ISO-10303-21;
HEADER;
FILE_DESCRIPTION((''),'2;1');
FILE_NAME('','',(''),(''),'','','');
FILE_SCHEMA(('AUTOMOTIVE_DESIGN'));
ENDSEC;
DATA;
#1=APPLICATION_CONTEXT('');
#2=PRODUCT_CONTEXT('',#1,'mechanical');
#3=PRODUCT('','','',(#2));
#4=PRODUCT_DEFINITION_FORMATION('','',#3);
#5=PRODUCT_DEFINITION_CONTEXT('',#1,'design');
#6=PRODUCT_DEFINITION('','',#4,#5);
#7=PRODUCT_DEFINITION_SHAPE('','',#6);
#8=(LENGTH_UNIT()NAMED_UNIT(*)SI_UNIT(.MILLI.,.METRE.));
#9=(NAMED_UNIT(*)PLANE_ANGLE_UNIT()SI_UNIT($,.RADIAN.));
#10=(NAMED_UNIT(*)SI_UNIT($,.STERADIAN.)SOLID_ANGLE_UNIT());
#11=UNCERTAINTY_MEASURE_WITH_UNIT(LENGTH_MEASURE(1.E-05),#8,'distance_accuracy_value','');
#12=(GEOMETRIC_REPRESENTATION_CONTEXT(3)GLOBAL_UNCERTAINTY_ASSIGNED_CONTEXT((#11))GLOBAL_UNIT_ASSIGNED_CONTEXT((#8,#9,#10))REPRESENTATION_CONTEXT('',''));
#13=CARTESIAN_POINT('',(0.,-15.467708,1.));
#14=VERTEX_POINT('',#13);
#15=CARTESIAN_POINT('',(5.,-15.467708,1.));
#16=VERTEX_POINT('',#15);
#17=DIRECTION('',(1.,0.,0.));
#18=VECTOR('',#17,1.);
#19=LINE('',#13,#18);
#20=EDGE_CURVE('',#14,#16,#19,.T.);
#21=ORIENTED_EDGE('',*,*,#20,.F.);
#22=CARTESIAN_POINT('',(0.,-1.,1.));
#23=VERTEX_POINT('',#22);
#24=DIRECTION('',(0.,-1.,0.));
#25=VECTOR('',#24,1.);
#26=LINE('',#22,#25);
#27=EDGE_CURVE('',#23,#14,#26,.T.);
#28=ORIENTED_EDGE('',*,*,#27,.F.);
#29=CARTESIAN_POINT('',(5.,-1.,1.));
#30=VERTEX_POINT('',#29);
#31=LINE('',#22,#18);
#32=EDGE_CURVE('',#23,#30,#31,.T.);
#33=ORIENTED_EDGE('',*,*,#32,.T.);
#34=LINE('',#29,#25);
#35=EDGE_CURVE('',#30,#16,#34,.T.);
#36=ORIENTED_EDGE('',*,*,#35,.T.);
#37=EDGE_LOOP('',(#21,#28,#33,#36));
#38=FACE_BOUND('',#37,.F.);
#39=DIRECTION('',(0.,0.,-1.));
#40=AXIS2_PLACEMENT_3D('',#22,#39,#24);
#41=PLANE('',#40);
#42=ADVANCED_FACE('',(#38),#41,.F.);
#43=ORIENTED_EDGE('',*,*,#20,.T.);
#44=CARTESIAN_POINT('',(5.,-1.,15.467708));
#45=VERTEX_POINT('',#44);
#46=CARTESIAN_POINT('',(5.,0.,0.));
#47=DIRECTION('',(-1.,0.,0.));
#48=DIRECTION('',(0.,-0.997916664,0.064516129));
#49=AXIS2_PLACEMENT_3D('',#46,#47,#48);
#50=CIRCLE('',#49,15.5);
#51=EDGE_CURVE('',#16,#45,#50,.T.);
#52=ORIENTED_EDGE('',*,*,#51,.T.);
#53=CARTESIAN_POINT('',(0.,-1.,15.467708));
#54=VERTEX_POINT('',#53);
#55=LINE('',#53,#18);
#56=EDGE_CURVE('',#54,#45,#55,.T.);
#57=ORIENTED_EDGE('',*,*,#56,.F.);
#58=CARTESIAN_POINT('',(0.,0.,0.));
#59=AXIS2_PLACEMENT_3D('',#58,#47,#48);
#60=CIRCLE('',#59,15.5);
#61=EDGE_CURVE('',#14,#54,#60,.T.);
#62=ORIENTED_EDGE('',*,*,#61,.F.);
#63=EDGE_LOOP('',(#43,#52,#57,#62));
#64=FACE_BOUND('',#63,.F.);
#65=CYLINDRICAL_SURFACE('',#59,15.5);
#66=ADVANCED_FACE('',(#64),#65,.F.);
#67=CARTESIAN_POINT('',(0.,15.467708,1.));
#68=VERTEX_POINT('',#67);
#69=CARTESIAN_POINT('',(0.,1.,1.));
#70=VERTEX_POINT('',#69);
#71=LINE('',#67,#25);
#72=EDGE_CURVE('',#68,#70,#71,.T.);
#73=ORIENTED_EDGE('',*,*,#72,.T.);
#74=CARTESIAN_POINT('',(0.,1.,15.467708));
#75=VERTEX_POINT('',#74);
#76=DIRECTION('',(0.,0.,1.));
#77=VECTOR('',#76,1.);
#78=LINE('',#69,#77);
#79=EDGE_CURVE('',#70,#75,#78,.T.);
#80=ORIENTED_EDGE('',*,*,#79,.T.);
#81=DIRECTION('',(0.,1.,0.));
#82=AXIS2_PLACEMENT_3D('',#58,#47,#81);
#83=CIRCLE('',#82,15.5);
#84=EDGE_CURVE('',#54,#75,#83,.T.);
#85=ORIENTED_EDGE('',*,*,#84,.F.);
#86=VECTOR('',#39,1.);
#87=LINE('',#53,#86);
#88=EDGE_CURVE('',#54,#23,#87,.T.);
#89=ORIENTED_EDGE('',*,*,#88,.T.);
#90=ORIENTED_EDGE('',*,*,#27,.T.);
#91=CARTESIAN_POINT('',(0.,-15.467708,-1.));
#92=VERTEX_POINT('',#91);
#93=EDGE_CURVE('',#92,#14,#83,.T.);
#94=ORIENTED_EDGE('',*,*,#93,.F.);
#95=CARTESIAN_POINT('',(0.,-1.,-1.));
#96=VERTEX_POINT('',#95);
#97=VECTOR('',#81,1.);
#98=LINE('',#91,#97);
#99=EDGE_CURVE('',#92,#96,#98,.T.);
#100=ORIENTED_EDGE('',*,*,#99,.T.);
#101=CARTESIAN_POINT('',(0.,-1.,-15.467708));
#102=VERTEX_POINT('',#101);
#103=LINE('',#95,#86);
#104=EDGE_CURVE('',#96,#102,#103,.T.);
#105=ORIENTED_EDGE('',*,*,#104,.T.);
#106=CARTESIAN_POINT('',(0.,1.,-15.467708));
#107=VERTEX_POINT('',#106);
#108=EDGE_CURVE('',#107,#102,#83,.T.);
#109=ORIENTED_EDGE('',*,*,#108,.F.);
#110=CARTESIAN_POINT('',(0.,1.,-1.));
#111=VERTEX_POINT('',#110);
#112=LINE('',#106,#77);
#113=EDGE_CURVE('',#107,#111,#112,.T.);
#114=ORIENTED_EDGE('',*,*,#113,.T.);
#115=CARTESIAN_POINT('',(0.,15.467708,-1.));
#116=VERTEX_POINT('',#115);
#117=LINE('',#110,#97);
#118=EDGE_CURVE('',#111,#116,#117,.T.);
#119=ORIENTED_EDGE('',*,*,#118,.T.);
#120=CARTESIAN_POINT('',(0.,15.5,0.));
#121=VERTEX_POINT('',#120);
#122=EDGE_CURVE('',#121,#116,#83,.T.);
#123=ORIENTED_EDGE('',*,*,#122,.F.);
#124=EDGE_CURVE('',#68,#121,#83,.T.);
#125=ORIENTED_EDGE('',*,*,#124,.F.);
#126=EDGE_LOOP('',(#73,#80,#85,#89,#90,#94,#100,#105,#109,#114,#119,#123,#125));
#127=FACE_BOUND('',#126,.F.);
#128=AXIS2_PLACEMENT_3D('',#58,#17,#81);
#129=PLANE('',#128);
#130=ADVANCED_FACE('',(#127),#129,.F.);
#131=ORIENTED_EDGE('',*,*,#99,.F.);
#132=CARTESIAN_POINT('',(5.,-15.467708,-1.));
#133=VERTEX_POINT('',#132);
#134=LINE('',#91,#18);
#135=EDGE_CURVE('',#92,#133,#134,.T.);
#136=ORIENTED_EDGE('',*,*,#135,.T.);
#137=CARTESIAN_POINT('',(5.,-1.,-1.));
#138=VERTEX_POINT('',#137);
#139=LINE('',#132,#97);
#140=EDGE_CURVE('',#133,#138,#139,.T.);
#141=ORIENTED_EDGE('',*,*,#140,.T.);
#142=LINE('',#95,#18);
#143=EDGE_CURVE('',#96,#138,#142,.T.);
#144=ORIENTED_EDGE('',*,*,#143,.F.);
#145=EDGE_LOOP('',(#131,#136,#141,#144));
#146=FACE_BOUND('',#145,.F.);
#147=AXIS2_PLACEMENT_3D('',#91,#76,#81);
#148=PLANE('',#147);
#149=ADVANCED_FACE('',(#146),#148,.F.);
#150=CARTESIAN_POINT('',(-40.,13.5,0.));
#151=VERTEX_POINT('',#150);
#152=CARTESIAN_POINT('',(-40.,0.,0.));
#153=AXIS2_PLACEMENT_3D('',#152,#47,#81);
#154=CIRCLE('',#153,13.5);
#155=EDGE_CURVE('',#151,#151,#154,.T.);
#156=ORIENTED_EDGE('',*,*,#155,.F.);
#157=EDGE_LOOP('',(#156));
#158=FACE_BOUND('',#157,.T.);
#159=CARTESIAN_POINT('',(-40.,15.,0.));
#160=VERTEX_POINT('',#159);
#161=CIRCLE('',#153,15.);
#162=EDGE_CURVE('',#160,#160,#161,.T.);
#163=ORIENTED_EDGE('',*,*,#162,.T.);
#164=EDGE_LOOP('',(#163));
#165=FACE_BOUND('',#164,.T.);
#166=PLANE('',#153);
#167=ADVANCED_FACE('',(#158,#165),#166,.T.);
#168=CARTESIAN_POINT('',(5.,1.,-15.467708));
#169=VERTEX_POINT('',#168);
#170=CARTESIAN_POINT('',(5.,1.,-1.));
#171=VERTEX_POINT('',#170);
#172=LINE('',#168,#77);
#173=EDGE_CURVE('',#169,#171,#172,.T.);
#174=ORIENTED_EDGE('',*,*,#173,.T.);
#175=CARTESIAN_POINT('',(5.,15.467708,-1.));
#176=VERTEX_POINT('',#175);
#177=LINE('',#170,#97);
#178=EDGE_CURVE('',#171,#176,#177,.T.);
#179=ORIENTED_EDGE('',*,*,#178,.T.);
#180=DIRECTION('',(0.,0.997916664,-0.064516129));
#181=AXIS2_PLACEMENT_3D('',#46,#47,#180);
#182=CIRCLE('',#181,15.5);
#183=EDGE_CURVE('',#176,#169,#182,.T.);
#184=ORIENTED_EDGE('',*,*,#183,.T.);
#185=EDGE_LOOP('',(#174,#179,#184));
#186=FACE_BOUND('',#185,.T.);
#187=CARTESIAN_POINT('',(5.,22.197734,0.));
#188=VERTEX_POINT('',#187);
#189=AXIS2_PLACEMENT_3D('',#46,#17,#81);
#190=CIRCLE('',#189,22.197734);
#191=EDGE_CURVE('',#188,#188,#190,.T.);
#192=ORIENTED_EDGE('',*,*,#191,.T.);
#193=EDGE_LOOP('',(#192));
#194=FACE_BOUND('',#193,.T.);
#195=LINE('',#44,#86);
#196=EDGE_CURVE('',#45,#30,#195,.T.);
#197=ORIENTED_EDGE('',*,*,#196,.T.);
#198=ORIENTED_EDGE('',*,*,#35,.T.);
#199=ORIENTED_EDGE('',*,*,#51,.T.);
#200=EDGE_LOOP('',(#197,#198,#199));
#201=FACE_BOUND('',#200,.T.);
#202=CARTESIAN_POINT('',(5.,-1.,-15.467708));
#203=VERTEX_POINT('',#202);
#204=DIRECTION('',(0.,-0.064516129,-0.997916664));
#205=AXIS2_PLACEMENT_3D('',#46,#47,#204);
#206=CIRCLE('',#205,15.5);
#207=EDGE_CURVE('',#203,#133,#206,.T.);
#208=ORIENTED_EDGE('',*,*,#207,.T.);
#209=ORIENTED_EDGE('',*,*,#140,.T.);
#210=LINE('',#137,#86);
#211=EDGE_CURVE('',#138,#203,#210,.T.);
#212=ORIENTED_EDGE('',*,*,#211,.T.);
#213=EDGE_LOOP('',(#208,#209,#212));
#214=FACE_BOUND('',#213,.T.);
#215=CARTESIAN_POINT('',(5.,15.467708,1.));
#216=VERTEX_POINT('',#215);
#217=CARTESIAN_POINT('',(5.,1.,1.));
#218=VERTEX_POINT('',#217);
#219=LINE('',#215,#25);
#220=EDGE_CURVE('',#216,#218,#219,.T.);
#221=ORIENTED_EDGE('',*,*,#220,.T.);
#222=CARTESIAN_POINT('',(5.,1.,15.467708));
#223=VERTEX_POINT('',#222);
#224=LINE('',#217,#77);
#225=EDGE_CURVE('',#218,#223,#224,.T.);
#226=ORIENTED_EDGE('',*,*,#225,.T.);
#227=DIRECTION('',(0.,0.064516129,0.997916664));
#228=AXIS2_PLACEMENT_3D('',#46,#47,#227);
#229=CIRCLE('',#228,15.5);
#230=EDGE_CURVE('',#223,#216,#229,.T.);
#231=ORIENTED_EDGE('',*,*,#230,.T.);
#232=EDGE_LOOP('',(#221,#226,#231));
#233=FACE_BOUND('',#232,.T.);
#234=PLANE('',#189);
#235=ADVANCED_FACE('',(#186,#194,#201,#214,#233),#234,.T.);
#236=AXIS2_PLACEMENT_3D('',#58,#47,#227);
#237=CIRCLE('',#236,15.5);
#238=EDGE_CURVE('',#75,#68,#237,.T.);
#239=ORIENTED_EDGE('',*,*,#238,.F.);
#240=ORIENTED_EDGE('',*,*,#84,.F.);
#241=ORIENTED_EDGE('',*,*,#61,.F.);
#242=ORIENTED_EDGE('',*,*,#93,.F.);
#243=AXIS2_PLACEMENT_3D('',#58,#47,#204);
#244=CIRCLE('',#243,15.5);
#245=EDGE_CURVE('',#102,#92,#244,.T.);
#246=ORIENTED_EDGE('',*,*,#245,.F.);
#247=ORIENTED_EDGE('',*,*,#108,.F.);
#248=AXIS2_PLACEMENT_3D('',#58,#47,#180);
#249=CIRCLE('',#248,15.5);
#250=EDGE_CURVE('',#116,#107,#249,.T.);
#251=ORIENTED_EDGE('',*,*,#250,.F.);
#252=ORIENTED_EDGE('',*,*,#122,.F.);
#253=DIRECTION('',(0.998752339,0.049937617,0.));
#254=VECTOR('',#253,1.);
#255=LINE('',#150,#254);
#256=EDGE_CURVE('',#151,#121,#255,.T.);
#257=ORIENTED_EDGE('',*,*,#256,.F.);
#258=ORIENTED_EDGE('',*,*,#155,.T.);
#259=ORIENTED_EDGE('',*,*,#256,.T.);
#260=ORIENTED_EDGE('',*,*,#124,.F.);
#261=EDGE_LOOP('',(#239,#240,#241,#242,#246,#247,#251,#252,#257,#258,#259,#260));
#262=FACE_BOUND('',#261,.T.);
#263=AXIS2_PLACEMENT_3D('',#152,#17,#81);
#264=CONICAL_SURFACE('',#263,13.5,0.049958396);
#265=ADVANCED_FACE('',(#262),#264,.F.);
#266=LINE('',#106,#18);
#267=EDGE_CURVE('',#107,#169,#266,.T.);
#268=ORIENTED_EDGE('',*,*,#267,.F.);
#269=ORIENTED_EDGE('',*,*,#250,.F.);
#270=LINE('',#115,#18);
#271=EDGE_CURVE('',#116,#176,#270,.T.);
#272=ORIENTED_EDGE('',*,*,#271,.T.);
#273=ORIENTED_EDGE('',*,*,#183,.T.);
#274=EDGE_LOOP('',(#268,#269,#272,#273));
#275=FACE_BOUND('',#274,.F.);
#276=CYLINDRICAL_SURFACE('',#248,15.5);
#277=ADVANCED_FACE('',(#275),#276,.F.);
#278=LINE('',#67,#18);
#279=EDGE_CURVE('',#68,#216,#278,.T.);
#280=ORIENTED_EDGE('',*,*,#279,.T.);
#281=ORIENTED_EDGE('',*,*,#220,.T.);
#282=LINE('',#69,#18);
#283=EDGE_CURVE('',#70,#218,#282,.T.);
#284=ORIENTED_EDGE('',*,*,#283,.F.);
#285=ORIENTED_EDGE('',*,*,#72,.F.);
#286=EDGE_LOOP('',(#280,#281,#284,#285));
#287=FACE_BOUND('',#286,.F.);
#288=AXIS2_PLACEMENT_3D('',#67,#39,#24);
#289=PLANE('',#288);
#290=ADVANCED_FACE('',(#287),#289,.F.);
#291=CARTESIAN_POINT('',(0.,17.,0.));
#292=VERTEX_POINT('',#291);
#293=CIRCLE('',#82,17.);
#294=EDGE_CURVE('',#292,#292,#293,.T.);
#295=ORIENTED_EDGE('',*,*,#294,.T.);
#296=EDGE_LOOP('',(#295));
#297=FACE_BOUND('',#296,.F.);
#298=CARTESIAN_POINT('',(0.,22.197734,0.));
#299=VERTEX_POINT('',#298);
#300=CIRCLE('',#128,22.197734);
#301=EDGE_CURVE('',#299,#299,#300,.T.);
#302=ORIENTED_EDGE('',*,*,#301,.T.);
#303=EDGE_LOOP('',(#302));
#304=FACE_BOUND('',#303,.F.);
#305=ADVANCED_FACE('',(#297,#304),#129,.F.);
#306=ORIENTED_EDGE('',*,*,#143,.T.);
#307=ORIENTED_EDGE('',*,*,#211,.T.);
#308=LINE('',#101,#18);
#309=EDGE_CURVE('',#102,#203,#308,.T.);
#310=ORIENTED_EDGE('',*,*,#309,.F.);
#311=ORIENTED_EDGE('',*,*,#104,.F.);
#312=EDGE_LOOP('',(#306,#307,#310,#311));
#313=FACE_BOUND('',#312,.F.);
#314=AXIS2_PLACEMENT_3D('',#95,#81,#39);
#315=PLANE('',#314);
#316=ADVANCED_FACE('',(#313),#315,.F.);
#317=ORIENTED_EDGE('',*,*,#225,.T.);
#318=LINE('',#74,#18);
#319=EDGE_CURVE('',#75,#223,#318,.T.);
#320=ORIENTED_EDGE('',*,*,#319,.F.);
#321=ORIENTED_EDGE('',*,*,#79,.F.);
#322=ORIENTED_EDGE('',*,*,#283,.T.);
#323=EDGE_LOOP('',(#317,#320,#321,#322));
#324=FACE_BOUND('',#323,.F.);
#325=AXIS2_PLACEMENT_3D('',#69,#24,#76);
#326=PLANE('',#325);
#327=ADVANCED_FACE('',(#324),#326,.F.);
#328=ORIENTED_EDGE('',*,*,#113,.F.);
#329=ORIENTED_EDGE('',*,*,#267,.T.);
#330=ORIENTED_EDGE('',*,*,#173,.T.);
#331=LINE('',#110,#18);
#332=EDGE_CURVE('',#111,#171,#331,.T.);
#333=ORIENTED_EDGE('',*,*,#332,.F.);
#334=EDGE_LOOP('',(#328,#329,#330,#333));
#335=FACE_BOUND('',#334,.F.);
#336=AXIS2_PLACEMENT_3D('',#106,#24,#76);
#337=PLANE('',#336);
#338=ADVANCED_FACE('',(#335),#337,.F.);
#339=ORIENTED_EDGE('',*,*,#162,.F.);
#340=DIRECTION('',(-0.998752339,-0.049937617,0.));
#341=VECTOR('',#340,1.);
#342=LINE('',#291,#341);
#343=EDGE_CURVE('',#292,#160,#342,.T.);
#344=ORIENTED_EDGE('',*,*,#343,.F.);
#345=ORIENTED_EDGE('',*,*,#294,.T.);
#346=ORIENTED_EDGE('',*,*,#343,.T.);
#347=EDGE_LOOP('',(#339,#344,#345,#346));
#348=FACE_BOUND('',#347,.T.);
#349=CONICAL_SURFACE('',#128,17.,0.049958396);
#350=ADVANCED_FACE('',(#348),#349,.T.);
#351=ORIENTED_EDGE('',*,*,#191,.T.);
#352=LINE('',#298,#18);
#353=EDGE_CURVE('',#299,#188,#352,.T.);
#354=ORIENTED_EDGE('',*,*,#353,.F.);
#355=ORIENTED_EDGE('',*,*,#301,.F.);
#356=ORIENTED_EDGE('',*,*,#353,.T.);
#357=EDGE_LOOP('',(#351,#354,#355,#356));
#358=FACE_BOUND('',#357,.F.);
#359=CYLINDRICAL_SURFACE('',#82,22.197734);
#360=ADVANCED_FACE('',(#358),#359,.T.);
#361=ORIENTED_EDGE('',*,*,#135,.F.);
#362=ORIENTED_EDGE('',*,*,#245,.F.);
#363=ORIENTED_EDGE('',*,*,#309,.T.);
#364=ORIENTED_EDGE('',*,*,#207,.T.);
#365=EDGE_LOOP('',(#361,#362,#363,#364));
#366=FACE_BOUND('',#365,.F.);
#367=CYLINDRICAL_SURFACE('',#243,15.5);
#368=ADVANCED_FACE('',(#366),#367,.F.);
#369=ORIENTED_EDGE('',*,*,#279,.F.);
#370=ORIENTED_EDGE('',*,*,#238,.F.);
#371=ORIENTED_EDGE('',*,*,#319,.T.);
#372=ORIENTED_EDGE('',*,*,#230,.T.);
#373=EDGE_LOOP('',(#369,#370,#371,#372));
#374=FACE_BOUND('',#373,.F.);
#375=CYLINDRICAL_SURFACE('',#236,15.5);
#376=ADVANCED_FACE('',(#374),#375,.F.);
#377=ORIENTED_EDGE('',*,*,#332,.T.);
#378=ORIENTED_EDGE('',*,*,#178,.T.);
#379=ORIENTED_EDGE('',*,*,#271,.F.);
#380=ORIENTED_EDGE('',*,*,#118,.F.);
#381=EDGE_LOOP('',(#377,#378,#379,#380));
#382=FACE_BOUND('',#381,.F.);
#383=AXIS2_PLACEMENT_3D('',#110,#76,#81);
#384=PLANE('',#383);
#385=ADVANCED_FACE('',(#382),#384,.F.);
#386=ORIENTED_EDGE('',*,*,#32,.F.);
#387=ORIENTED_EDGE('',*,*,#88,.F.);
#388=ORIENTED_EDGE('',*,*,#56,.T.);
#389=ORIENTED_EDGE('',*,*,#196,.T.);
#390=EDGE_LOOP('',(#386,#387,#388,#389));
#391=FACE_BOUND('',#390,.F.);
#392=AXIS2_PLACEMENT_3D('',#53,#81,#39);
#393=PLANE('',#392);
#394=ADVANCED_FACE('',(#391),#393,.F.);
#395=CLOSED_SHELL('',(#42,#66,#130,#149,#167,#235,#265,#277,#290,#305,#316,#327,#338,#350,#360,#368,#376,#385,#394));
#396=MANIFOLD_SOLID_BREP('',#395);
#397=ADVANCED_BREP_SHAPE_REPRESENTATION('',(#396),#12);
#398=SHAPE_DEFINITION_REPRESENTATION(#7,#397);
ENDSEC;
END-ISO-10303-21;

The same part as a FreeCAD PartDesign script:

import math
import FreeCAD as App
import Part
import Sketcher
from FreeCAD import Vector
Q = App.Units.Quantity


def add_polygon(sketch, points):
    """Adds a closed chain of lines whose ends are joined by coincident constraints."""
    first, n = sketch.GeometryCount, len(points)
    for a, b in zip(points, points[1:] + points[:1]):
        sketch.addGeometry(Part.LineSegment(App.Vector(*a, 0), App.Vector(*b, 0)), False)
    for i in range(n):
        sketch.addConstraint(Sketcher.Constraint("Coincident", first + i, 2, first + (i + 1) % n, 1))

doc = App.newDocument("Part")
body = doc.addObject("PartDesign::Body", "Body")

# Sketch on XY plane
sketch1 = body.newObject("Sketcher::SketchObject", "Sketch")
sketch1.AttachmentSupport = (doc.getObject("XY_Plane"), [""])
sketch1.MapMode = "FlatFace"
add_polygon(sketch1, [(-40, 13.5), (0, 15.5), (0, 17), (-40, 15)])  # lines 0-3
sketch1.addConstraint(Sketcher.Constraint("Vertical", 1))
sketch1.addConstraint(Sketcher.Constraint("Vertical", 3))
sketch1.addConstraint(Sketcher.Constraint("PointOnObject", 0, 2, -2))
sketch1.addConstraint(Sketcher.Constraint("Parallel", 0, 2))
sketch1.addConstraint(Sketcher.Constraint("DistanceY", 1, 1, 1, 2, Q("1.5 mm")))
sketch1.addConstraint(Sketcher.Constraint("DistanceY", -1, 1, 1, 2, Q("17 mm")))
sketch1.addConstraint(Sketcher.Constraint("DistanceX", 2, 2, -1, 1, Q("40 mm")))
sketch1.addConstraint(Sketcher.Constraint("DistanceY", -1, 1, 2, 2, Q("15 mm")))
revolution = body.newObject("PartDesign::Revolution", "Revolution")
revolution.Profile = sketch1
revolution.ReferenceAxis = (sketch1, ["H_Axis"])
revolution.Angle = 360

# Sketch on YZ plane
sketch2 = body.newObject("Sketcher::SketchObject", "Sketch001")
sketch2.AttachmentSupport = (doc.getObject("YZ_Plane"), [""])
sketch2.MapMode = "FlatFace"
sketch2.addGeometry(Part.Circle(Vector(0, 0, 0), Vector(0, 0, 1), 22), False)
sketch2.addGeometry(Part.ArcOfCircle(Part.Circle(Vector(0, 0, 0), Vector(0, 0, 1), 16), math.radians(94), math.radians(176)), False)
sketch2.addGeometry(Part.LineSegment(Vector(-1, 15, 0), Vector(-1, 1, 0)), False)
sketch2.addGeometry(Part.LineSegment(Vector(-1, 1, 0), Vector(-15, 1, 0)), False)
sketch2.addGeometry(Part.ArcOfCircle(Part.Circle(Vector(0, 0, 0), Vector(0, 0, 1), 16), math.radians(-176), math.radians(-94)), False)
sketch2.addGeometry(Part.LineSegment(Vector(-15, -1, 0), Vector(-1, -1, 0)), False)
sketch2.addGeometry(Part.LineSegment(Vector(-1, -1, 0), Vector(-1, -15, 0)), False)
sketch2.addGeometry(Part.ArcOfCircle(Part.Circle(Vector(0, 0, 0), Vector(0, 0, 1), 16), math.radians(-86), math.radians(-4)), False)
sketch2.addGeometry(Part.LineSegment(Vector(1, -15, 0), Vector(1, -1, 0)), False)
sketch2.addGeometry(Part.LineSegment(Vector(1, -1, 0), Vector(15, -1, 0)), False)
sketch2.addGeometry(Part.ArcOfCircle(Part.Circle(Vector(0, 0, 0), Vector(0, 0, 1), 16), math.radians(4), math.radians(86)), False)
sketch2.addGeometry(Part.LineSegment(Vector(15, 1, 0), Vector(1, 1, 0)), False)
sketch2.addGeometry(Part.LineSegment(Vector(1, 1, 0), Vector(1, 15, 0)), False)
sketch2.addConstraint(Sketcher.Constraint("Coincident", 1, 1, 2, 1))
sketch2.addConstraint(Sketcher.Constraint("Coincident", 2, 2, 3, 1))
sketch2.addConstraint(Sketcher.Constraint("Coincident", 3, 2, 1, 2))
sketch2.addConstraint(Sketcher.Constraint("Coincident", 4, 1, 5, 1))
sketch2.addConstraint(Sketcher.Constraint("Coincident", 5, 2, 6, 1))
sketch2.addConstraint(Sketcher.Constraint("Coincident", 6, 2, 4, 2))
sketch2.addConstraint(Sketcher.Constraint("Coincident", 7, 1, 8, 1))
sketch2.addConstraint(Sketcher.Constraint("Coincident", 8, 2, 9, 1))
sketch2.addConstraint(Sketcher.Constraint("Coincident", 9, 2, 7, 2))
sketch2.addConstraint(Sketcher.Constraint("Coincident", 10, 1, 11, 1))
sketch2.addConstraint(Sketcher.Constraint("Coincident", 11, 2, 12, 1))
sketch2.addConstraint(Sketcher.Constraint("Coincident", 12, 2, 10, 2))
sketch2.addConstraint(Sketcher.Constraint("Vertical", 2))
sketch2.addConstraint(Sketcher.Constraint("Horizontal", 3))
sketch2.addConstraint(Sketcher.Constraint("Horizontal", 5))
sketch2.addConstraint(Sketcher.Constraint("Vertical", 6))
sketch2.addConstraint(Sketcher.Constraint("Vertical", 8))
sketch2.addConstraint(Sketcher.Constraint("Horizontal", 9))
sketch2.addConstraint(Sketcher.Constraint("Horizontal", 11))
sketch2.addConstraint(Sketcher.Constraint("Vertical", 12))
sketch2.addConstraint(Sketcher.Constraint("Coincident", 0, 3, -1, 1))
sketch2.addConstraint(Sketcher.Constraint("Coincident", 1, 3, -1, 1))
sketch2.addConstraint(Sketcher.Constraint("Coincident", 4, 3, -1, 1))
sketch2.addConstraint(Sketcher.Constraint("Coincident", 7, 3, -1, 1))
sketch2.addConstraint(Sketcher.Constraint("Coincident", 10, 3, -1, 1))
sketch2.addConstraint(Sketcher.Constraint("Equal", 1, 4))
sketch2.addConstraint(Sketcher.Constraint("Equal", 4, 7))
sketch2.addConstraint(Sketcher.Constraint("Equal", 7, 10))
sketch2.addConstraint(Sketcher.Constraint("Symmetric", 2, 2, 8, 2, -1, 1))
sketch2.addConstraint(Sketcher.Constraint("Symmetric", 5, 2, 11, 2, -1, 1))
sketch2.addConstraint(Sketcher.Constraint("Symmetric", 5, 2, 8, 2, -2))
sketch2.addConstraint(Sketcher.Constraint("Equal", 11, 2))
sketch2.addConstraint(Sketcher.Constraint("Radius", 1, Q("15.5 mm")))
sketch2.addConstraint(Sketcher.Constraint("DistanceX", 1, 1, -1, 1, Q("1 mm")))
sketch2.addConstraint(Sketcher.Constraint("Diameter", 0, Q("44.395467 mm")))
pad1 = body.newObject("PartDesign::Pad", "Pad")
pad1.Profile = sketch2
pad1.Length = 5

doc.recompute()
